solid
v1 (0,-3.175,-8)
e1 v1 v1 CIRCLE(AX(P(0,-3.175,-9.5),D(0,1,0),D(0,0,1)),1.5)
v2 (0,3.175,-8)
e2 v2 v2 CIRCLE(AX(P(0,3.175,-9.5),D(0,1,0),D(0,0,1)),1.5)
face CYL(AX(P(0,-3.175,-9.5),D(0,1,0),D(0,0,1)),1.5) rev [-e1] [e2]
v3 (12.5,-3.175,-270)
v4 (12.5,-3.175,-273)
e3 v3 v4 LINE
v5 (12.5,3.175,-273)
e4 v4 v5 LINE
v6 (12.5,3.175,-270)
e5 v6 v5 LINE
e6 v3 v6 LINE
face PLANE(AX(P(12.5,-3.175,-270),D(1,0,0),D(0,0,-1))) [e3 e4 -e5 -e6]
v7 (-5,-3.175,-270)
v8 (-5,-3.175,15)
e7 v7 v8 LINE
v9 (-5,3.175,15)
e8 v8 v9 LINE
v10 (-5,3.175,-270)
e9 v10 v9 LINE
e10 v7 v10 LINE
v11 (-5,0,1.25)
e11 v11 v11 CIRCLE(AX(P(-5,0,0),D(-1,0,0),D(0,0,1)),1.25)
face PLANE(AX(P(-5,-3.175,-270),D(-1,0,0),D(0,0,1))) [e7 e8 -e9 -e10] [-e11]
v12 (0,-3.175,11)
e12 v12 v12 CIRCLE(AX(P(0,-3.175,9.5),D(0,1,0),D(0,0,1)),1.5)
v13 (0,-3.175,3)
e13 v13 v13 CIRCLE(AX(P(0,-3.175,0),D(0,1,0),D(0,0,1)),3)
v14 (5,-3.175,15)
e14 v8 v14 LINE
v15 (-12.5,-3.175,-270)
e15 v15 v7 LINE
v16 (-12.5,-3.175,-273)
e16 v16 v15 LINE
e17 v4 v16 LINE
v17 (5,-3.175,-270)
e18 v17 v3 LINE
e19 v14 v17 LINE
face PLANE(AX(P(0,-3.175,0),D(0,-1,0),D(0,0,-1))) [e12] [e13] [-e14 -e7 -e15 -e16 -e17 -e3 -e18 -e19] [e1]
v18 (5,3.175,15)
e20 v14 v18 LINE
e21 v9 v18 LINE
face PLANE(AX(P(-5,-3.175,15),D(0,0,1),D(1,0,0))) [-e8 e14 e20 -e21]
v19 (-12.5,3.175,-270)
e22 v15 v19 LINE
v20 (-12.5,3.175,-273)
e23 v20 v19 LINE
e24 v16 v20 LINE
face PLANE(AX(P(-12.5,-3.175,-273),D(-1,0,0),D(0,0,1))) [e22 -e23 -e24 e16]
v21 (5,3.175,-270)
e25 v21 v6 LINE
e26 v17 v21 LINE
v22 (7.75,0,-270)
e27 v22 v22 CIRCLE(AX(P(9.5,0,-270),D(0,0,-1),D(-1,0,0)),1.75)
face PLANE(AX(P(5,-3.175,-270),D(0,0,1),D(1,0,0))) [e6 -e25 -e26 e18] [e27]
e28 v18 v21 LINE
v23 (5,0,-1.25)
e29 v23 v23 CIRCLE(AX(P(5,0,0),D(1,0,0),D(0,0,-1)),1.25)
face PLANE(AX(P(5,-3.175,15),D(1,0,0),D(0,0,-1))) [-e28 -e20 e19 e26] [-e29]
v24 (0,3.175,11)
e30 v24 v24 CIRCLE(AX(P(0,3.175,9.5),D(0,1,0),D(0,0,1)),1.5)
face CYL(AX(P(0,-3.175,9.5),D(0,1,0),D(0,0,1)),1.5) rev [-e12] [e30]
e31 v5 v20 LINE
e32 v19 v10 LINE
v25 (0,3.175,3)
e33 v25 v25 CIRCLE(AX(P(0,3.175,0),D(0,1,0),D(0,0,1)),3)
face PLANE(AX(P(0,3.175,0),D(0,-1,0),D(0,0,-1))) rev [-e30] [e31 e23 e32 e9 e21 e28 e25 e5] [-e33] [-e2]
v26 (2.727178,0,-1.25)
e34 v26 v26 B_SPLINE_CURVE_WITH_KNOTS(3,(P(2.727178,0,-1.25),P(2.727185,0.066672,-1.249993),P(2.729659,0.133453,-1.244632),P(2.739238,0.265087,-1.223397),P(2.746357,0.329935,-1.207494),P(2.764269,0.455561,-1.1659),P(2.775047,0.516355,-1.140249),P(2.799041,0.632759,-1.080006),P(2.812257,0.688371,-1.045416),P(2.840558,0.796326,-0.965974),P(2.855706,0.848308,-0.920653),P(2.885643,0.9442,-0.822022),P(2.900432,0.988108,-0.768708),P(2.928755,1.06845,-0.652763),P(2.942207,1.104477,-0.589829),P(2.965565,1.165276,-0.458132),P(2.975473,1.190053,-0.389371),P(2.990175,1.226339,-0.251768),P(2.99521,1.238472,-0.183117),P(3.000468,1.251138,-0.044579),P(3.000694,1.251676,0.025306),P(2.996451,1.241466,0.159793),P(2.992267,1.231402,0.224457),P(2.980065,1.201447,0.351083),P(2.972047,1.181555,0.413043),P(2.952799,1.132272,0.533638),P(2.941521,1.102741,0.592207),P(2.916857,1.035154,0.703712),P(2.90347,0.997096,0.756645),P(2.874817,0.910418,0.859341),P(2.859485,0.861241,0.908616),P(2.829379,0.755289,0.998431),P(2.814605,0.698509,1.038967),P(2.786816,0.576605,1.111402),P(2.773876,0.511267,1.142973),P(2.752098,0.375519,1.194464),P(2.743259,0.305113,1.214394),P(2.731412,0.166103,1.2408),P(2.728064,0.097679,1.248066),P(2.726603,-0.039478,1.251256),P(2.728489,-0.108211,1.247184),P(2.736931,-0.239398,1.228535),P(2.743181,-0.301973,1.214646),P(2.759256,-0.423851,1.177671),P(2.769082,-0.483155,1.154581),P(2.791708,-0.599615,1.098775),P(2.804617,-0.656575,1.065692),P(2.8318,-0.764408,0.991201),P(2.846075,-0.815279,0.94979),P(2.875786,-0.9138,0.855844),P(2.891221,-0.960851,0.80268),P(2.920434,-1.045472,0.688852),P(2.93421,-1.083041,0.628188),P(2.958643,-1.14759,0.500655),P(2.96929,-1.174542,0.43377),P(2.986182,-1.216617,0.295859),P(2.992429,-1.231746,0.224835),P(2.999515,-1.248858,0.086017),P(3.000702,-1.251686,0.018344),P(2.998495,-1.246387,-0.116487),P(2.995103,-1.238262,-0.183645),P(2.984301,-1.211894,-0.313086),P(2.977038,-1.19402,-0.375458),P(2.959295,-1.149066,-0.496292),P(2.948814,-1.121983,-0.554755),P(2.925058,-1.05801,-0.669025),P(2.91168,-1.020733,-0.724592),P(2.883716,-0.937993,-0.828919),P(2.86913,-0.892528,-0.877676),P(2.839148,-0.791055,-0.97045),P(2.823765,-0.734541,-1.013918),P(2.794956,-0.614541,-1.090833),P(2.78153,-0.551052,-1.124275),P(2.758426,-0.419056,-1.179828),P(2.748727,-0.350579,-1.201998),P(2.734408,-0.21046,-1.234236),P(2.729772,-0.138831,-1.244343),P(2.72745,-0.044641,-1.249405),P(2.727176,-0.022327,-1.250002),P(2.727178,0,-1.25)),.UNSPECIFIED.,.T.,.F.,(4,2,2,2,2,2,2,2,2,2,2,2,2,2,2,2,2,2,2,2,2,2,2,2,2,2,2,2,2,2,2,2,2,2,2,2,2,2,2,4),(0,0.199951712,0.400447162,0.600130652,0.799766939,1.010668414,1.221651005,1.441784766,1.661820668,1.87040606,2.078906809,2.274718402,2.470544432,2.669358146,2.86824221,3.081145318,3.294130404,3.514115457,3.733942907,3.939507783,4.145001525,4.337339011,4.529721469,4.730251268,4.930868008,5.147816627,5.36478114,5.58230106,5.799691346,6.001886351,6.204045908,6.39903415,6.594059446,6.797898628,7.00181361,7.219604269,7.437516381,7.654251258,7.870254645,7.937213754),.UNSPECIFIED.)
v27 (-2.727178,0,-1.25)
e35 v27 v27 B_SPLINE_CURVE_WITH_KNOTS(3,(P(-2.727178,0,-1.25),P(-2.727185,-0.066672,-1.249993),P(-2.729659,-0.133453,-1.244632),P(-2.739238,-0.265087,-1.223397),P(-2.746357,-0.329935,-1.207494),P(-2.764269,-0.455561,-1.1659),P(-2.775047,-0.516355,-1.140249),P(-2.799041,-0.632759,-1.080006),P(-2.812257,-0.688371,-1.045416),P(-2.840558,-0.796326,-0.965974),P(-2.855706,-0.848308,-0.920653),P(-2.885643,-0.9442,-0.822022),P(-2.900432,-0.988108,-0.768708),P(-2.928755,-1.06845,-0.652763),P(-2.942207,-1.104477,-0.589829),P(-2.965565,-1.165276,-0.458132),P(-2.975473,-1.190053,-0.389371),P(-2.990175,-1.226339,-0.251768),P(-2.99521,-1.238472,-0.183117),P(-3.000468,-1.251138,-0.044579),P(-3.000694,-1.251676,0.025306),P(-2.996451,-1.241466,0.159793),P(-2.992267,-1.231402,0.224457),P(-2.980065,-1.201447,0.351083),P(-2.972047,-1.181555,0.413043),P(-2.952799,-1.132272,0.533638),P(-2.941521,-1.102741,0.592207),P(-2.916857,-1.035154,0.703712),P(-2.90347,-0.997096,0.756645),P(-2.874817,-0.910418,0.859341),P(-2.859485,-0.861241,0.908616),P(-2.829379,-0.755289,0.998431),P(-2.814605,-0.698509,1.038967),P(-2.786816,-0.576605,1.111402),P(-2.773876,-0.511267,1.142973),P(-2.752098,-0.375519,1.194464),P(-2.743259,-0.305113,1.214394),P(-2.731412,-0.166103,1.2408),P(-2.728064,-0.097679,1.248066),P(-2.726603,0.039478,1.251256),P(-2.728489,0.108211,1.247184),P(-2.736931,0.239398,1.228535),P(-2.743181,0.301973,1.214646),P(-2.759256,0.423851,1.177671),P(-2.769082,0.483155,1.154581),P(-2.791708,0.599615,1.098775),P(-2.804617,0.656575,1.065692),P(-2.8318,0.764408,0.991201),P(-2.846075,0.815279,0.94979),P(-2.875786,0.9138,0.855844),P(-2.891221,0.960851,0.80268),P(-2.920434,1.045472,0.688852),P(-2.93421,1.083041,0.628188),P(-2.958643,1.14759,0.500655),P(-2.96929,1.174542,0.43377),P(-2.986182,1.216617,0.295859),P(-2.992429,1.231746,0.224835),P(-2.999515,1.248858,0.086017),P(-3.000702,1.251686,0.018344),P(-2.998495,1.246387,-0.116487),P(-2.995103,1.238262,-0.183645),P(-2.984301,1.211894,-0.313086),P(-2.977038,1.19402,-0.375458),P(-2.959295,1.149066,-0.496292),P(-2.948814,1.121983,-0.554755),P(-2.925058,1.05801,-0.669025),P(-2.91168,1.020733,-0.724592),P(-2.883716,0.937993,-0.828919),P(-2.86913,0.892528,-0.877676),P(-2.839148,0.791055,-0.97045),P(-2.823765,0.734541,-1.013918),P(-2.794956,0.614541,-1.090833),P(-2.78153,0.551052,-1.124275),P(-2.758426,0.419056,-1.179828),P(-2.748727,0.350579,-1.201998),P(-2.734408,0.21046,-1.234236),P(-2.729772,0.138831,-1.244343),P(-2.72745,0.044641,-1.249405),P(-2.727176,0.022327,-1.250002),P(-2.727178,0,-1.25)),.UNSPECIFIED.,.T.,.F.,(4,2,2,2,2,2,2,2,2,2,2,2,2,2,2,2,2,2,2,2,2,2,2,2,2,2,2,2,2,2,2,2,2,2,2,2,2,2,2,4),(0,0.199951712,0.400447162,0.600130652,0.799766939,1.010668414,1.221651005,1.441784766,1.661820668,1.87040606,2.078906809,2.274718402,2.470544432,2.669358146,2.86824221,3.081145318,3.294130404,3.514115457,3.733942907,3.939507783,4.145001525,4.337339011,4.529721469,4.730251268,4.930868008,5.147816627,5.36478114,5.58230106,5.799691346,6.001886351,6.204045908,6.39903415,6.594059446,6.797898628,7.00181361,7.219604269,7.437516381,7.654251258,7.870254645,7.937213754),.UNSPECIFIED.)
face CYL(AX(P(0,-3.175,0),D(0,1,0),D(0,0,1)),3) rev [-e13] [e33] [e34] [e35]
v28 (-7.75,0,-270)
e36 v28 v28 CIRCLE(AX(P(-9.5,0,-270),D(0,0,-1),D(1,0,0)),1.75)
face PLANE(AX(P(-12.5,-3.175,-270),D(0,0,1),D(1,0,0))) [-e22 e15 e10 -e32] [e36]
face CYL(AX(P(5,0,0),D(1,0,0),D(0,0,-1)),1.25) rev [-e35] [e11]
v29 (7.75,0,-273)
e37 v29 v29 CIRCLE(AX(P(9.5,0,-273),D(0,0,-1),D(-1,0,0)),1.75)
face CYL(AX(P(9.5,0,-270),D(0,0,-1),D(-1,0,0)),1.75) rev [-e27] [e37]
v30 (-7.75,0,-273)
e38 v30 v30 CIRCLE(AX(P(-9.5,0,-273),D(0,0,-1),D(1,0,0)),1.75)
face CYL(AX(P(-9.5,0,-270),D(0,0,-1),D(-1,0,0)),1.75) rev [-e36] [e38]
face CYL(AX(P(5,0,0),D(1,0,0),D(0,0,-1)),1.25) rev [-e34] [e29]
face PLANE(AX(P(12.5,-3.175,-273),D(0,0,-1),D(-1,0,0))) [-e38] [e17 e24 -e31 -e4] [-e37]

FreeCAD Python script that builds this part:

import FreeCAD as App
import Part
import Sketcher

V = App.Vector


def add_polygon(sketch, points):
    """Adds a closed chain of lines whose ends are joined by coincident constraints."""
    first, n = sketch.GeometryCount, len(points)
    for a, b in zip(points, points[1:] + points[:1]):
        sketch.addGeometry(Part.LineSegment(App.Vector(*a, 0), App.Vector(*b, 0)), False)
    for i in range(n):
        sketch.addConstraint(Sketcher.Constraint("Coincident", first + i, 2, first + (i + 1) % n, 1))

doc = App.newDocument("Part")
params = doc.addObject("Spreadsheet::Sheet", "Params")
for row, (alias, value) in enumerate([
    ("sketch1_diameter", "3 mm"),
    ("sketch1_diameter2", "6 mm"),
    ("sketch1_width", "10 mm"),
    ("sketch1_width2", "25 mm"),
    ("sketch1_height", "285 mm"),
    ("pad1_length", "3.175 mm"),
    ("pad1_length2", "3.175 mm"),
    ("sketch2_diameter", "3.5 mm"),
    ("pocket1_length", "3 mm"),
    ("sketch3_diameter", "2.5 mm"),
    ("hole_diameter", "2.5 mm"),
], start=1):
    params.set(f"A{row}", alias)
    params.set(f"B{row}", "=" + value)
    params.setAlias(f"B{row}", alias)

body = doc.addObject("PartDesign::Body", "Body")

sketch1 = doc.addObject("Sketcher::SketchObject", "Sketch")
body.addObject(sketch1)
sketch1.AttachmentSupport = (doc.XZ_Plane, [""])
sketch1.MapMode = "FlatFace"
add_polygon(sketch1, [(-5, -270), (-5, 15), (5, 15), (5, -270), (12.5, -270), (12.5, -273), (-12.5, -273), (-12.5, -270)])
sketch1.addGeometry(Part.Circle(V(0, 9.5, 0), V(0, 0, 1), 1.5), False)
sketch1.addGeometry(Part.Circle(V(0, 0, 0), V(0, 0, 1), 3), False)
sketch1.addGeometry(Part.Circle(V(0, -9.5, 0), V(0, 0, 1), 1.5), False)
sketch1.addConstraint([
    Sketcher.Constraint("Vertical", 0),
    Sketcher.Constraint("Horizontal", 1),
    Sketcher.Constraint("Vertical", 2),
    Sketcher.Constraint("Horizontal", 3),
    Sketcher.Constraint("Vertical", 4),
    Sketcher.Constraint("Horizontal", 5),
    Sketcher.Constraint("Vertical", 6),
    Sketcher.Constraint("Horizontal", 7),
    Sketcher.Constraint("Coincident", 9, 3, -1, 1),
    Sketcher.Constraint("Equal", 8, 10),
    Sketcher.Constraint("Symmetric", 8, 3, 10, 3, -1, 1),
    Sketcher.Constraint("Symmetric", 3, 2, 6, 2, -2),
    Sketcher.Constraint("PointOnObject", 8, 3, -2),
    Sketcher.Constraint("Equal", 3, 7),
    Sketcher.Constraint("Diameter", 8, 3.0),
    Sketcher.Constraint("Diameter", 9, 6.0),
    Sketcher.Constraint("DistanceX", 1, 1, 1, 2, 10.0),
    Sketcher.Constraint("DistanceX", 5, 2, 5, 1, 25.0),
    Sketcher.Constraint("DistanceY", 0, 1, 0, 2, 285.0),
    Sketcher.Constraint("DistanceY", 4, 2, 4, 1, 3.0),
    Sketcher.Constraint("DistanceY", -1, 1, 0, 2, 15.0),
    Sketcher.Constraint("DistanceY", 10, 3, 8, 3, 19.0),
])
sketch1.setExpression("Constraints[22]", "Params.sketch1_diameter")
sketch1.setExpression("Constraints[23]", "Params.sketch1_diameter2")
sketch1.setExpression("Constraints[24]", "Params.sketch1_width")
sketch1.setExpression("Constraints[25]", "Params.sketch1_width2")
sketch1.setExpression("Constraints[26]", "Params.sketch1_height")
pad1 = doc.addObject("PartDesign::Pad", "Pad")
body.addObject(pad1)
pad1.Profile = sketch1
pad1.Type = "TwoLengths"
pad1.setExpression("Length", "Params.pad1_length")
pad1.setExpression("Length2", "Params.pad1_length2")
pad1.Reversed = True

sketch2 = doc.addObject("Sketcher::SketchObject", "Sketch001")
body.addObject(sketch2)
sketch2.AttachmentSupport = (doc.XY_Plane, [""])
sketch2.MapMode = "FlatFace"
sketch2.AttachmentOffset = App.Placement(V(0, 0, -273), App.Rotation())
sketch2.addGeometry([
    Part.Circle(V(9.5, 0, 0), V(0, 0, 1), 1.8),
    Part.Circle(V(-9.5, 0, 0), V(0, 0, 1), 1.8),
], False)
sketch2.addConstraint([
    Sketcher.Constraint("Equal", 0, 1),
    Sketcher.Constraint("Symmetric", 0, 3, 1, 3, -1, 1),
    Sketcher.Constraint("PointOnObject", 0, 3, -1),
    Sketcher.Constraint("Diameter", 0, 3.5),
    Sketcher.Constraint("DistanceX", 1, 3, 0, 3, 19.0),
])
sketch2.setExpression("Constraints[3]", "Params.sketch2_diameter")
pocket1 = doc.addObject("PartDesign::Pocket", "Pocket")
body.addObject(pocket1)
pocket1.Profile = sketch2
pocket1.setExpression("Length", "Params.pocket1_length")
pocket1.Reversed = True

sketch3 = doc.addObject("Sketcher::SketchObject", "Sketch002")
body.addObject(sketch3)
sketch3.AttachmentSupport = (doc.YZ_Plane, [""])
sketch3.MapMode = "FlatFace"
sketch3.AttachmentOffset = App.Placement(V(0, 0, 5), App.Rotation())
sketch3.addGeometry(Part.Circle(V(0, 0, 0), V(0, 0, 1), 1.2), False)
sketch3.addConstraint([
    Sketcher.Constraint("Coincident", 0, 3, -1, 1),
    Sketcher.Constraint("Diameter", 0, 2.5),
])
sketch3.setExpression("Constraints[1]", "Params.sketch3_diameter")
doc.recompute()
hole = doc.addObject("PartDesign::Hole", "Hole")
body.addObject(hole)
hole.Profile = sketch3
hole.ThreadType = "None"
hole.setExpression("Diameter", "Params.hole_diameter")
hole.DepthType = "ThroughAll"

doc.recompute()
